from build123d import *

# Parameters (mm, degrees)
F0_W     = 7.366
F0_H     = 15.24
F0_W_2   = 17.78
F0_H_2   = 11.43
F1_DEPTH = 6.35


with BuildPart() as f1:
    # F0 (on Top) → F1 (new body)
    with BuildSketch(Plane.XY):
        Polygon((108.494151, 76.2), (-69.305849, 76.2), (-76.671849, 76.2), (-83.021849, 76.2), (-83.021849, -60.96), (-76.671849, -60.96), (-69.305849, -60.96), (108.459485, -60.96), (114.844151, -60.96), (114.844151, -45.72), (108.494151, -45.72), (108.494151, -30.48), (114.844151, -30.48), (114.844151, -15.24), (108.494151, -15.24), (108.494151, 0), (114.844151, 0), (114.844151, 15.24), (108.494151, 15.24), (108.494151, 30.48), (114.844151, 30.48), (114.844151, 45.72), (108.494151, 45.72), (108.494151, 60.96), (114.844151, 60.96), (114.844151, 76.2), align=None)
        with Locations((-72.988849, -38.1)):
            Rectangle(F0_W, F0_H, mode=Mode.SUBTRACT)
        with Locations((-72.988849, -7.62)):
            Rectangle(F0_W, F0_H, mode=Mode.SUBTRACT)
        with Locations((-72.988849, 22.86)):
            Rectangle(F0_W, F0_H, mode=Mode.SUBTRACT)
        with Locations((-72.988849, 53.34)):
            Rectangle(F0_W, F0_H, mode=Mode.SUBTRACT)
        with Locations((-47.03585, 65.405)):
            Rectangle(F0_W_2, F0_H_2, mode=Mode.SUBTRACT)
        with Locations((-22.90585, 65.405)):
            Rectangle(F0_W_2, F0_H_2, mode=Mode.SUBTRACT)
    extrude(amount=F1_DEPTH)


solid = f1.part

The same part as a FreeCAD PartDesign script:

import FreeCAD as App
import Part
import Sketcher
Q = App.Units.Quantity


def add_polygon(sketch, points):
    """Adds a closed chain of lines whose ends are joined by coincident constraints."""
    first, n = sketch.GeometryCount, len(points)
    for a, b in zip(points, points[1:] + points[:1]):
        sketch.addGeometry(Part.LineSegment(App.Vector(*a, 0), App.Vector(*b, 0)), False)
    for i in range(n):
        sketch.addConstraint(Sketcher.Constraint("Coincident", first + i, 2, first + (i + 1) % n, 1))

doc = App.newDocument("Part")
params = doc.addObject("Spreadsheet::Sheet", "Params")
for row, (alias, value) in enumerate([
    ("sketch1_width", "0.7 in"),
    ("sketch1_height", "5.4 in"),
    ("sketch1_width2", "7.79 in"),
    ("sketch1_width3", "0.25 in"),
    ("sketch1_width4", "0.29 in"),
    ("pad1_length", "0.25 in"),
], start=1):
    params.set(f"A{row}", alias)
    params.set(f"B{row}", "=" + value)
    params.setAlias(f"B{row}", alias)

body = doc.addObject("PartDesign::Body", "Body")

# Sketch on XY plane
sketch1 = body.newObject("Sketcher::SketchObject", "Sketch")
sketch1.AttachmentSupport = (doc.getObject("XY_Plane"), [""])
sketch1.MapMode = "FlatFace"
add_polygon(sketch1, [(-83, 76), (-83, -61), (115, -61), (115, -46), (108, -46), (108, -30), (115, -30), (115, -15), (108, -15), (108, 0), (115, 0), (115, 15), (108, 15), (108, 30), (115, 30), (115, 46), (108, 46), (108, 61), (115, 61), (115, 76)])  # lines 0-19
add_polygon(sketch1, [(-69, -46), (-77, -46), (-77, -30), (-69, -30)])  # lines 20-23
add_polygon(sketch1, [(-69, -15), (-77, -15), (-77, 0), (-69, 0)])  # lines 24-27
add_polygon(sketch1, [(-69, 15), (-77, 15), (-77, 30), (-69, 30)])  # lines 28-31
add_polygon(sketch1, [(-69, 46), (-77, 46), (-77, 61), (-69, 61)])  # lines 32-35
add_polygon(sketch1, [(-38, 60), (-56, 60), (-56, 71), (-38, 71)])  # lines 36-39
add_polygon(sketch1, [(-14, 60), (-32, 60), (-32, 71), (-14, 71)])  # lines 40-43
sketch1.addConstraint(Sketcher.Constraint("Vertical", 0))
sketch1.addConstraint(Sketcher.Constraint("Horizontal", 1))
sketch1.addConstraint(Sketcher.Constraint("Vertical", 2))
sketch1.addConstraint(Sketcher.Constraint("Horizontal", 3))
sketch1.addConstraint(Sketcher.Constraint("Vertical", 4))
sketch1.addConstraint(Sketcher.Constraint("Horizontal", 5))
sketch1.addConstraint(Sketcher.Constraint("Vertical", 6))
sketch1.addConstraint(Sketcher.Constraint("Horizontal", 7))
sketch1.addConstraint(Sketcher.Constraint("Vertical", 8))
sketch1.addConstraint(Sketcher.Constraint("Horizontal", 9))
sketch1.addConstraint(Sketcher.Constraint("Vertical", 10))
sketch1.addConstraint(Sketcher.Constraint("Horizontal", 11))
sketch1.addConstraint(Sketcher.Constraint("Vertical", 12))
sketch1.addConstraint(Sketcher.Constraint("Horizontal", 13))
sketch1.addConstraint(Sketcher.Constraint("Vertical", 14))
sketch1.addConstraint(Sketcher.Constraint("Horizontal", 15))
sketch1.addConstraint(Sketcher.Constraint("Vertical", 16))
sketch1.addConstraint(Sketcher.Constraint("Horizontal", 17))
sketch1.addConstraint(Sketcher.Constraint("Vertical", 18))
sketch1.addConstraint(Sketcher.Constraint("Horizontal", 19))
sketch1.addConstraint(Sketcher.Constraint("Horizontal", 20))
sketch1.addConstraint(Sketcher.Constraint("Vertical", 21))
sketch1.addConstraint(Sketcher.Constraint("Horizontal", 22))
sketch1.addConstraint(Sketcher.Constraint("Vertical", 23))
sketch1.addConstraint(Sketcher.Constraint("Horizontal", 24))
sketch1.addConstraint(Sketcher.Constraint("Vertical", 25))
sketch1.addConstraint(Sketcher.Constraint("Horizontal", 26))
sketch1.addConstraint(Sketcher.Constraint("Vertical", 27))
sketch1.addConstraint(Sketcher.Constraint("Horizontal", 28))
sketch1.addConstraint(Sketcher.Constraint("Vertical", 29))
sketch1.addConstraint(Sketcher.Constraint("Horizontal", 30))
sketch1.addConstraint(Sketcher.Constraint("Vertical", 31))
sketch1.addConstraint(Sketcher.Constraint("Horizontal", 32))
sketch1.addConstraint(Sketcher.Constraint("Vertical", 33))
sketch1.addConstraint(Sketcher.Constraint("Horizontal", 34))
sketch1.addConstraint(Sketcher.Constraint("Vertical", 35))
sketch1.addConstraint(Sketcher.Constraint("Horizontal", 36))
sketch1.addConstraint(Sketcher.Constraint("Vertical", 37))
sketch1.addConstraint(Sketcher.Constraint("Horizontal", 38))
sketch1.addConstraint(Sketcher.Constraint("Vertical", 39))
sketch1.addConstraint(Sketcher.Constraint("Horizontal", 40))
sketch1.addConstraint(Sketcher.Constraint("Vertical", 41))
sketch1.addConstraint(Sketcher.Constraint("Horizontal", 42))
sketch1.addConstraint(Sketcher.Constraint("Vertical", 43))
sketch1.addConstraint(Sketcher.Constraint("Symmetric", 6, 2, 10, 2, -1))
sketch1.addConstraint(Sketcher.Constraint("Symmetric", 4, 2, 12, 2, -1))
sketch1.addConstraint(Sketcher.Constraint("Symmetric", 2, 2, 14, 2, -1))
sketch1.addConstraint(Sketcher.Constraint("Symmetric", 1, 2, 17, 2, -1))
sketch1.addConstraint(Sketcher.Constraint("Symmetric", 24, 2, 28, 2, -1))
sketch1.addConstraint(Sketcher.Constraint("Symmetric", 21, 2, 29, 2, -1))
sketch1.addConstraint(Sketcher.Constraint("Symmetric", 20, 2, 32, 2, -1))
sketch1.addConstraint(Sketcher.Constraint("PointOnObject", 8, 2, -1))
sketch1.addConstraint(Sketcher.Constraint("PointOnObject", 25, 2, -1))
sketch1.addConstraint(Sketcher.Constraint("Horizontal", 3, 2, 20, 2))
sketch1.addConstraint(Sketcher.Constraint("Horizontal", 5, 2, 21, 2))
sketch1.addConstraint(Sketcher.Constraint("Horizontal", 7, 2, 24, 2))
sketch1.addConstraint(Sketcher.Constraint("Horizontal", 17, 2, 33, 2))
sketch1.addConstraint(Sketcher.Constraint("Horizontal", 39, 2, 40, 2))
sketch1.addConstraint(Sketcher.Constraint("Horizontal", 38, 2, 41, 2))
sketch1.addConstraint(Sketcher.Constraint("Vertical", 2, 2, 5, 2))
sketch1.addConstraint(Sketcher.Constraint("Vertical", 4, 2, 7, 2))
sketch1.addConstraint(Sketcher.Constraint("Vertical", 12, 2, 15, 2))
sketch1.addConstraint(Sketcher.Constraint("Vertical", 23, 2, 26, 2))
sketch1.addConstraint(Sketcher.Constraint("Vertical", 27, 2, 30, 2))
sketch1.addConstraint(Sketcher.Constraint("Vertical", 31, 2, 34, 2))
sketch1.addConstraint(Sketcher.Constraint("Equal", 38, 40))
sketch1.addConstraint(Sketcher.Constraint("Equal", 2, 4))
sketch1.addConstraint(Sketcher.Constraint("Equal", 4, 6))
sketch1.addConstraint(Sketcher.Constraint("Equal", 6, 8))
sketch1.addConstraint(Sketcher.Constraint("Equal", 16, 18))
sketch1.addConstraint(Sketcher.Constraint("DistanceX", 36, 2, 36, 1, Q("0.7 in")))
sketch1.addConstraint(Sketcher.Constraint("DistanceY", 0, 2, 0, 1, Q("5.4 in")))
sketch1.addConstraint(Sketcher.Constraint("DistanceX", 22, 2, 4, 2, Q("7 in")))
sketch1.addConstraint(Sketcher.Constraint("DistanceY", 35, 2, 37, 2, Q("1 in")))
sketch1.addConstraint(Sketcher.Constraint("DistanceX", 1, 1, 1, 2, Q("7.79 in")))
sketch1.addConstraint(Sketcher.Constraint("DistanceX", 3, 2, 3, 1, Q("0.25 in")))
sketch1.addConstraint(Sketcher.Constraint("DistanceX", 20, 2, 20, 1, Q("0.29 in")))
sketch1.addConstraint(Sketcher.Constraint("DistanceY", 37, 1, 37, 2, Q("0.45 in")))
sketch1.addConstraint(Sketcher.Constraint("DistanceX", 39, 2, 40, 2, Q("0.25 in")))
sketch1.addConstraint(Sketcher.Constraint("DistanceX", 34, 2, 36, 2, Q("13.379999 mm")))
sketch1.addConstraint(Sketcher.Constraint("DistanceX", 0, 2, -1, 1, Q("83.021849 mm")))
sketch1.setExpression("Constraints[114]", "Params.sketch1_width")
sketch1.setExpression("Constraints[115]", "Params.sketch1_height")
sketch1.setExpression("Constraints[118]", "Params.sketch1_width2")
sketch1.setExpression("Constraints[119]", "Params.sketch1_width3")
sketch1.setExpression("Constraints[120]", "Params.sketch1_width4")
pad1 = body.newObject("PartDesign::Pad", "Pad")
pad1.Profile = sketch1
pad1.setExpression("Length", "Params.pad1_length")

doc.recompute()
